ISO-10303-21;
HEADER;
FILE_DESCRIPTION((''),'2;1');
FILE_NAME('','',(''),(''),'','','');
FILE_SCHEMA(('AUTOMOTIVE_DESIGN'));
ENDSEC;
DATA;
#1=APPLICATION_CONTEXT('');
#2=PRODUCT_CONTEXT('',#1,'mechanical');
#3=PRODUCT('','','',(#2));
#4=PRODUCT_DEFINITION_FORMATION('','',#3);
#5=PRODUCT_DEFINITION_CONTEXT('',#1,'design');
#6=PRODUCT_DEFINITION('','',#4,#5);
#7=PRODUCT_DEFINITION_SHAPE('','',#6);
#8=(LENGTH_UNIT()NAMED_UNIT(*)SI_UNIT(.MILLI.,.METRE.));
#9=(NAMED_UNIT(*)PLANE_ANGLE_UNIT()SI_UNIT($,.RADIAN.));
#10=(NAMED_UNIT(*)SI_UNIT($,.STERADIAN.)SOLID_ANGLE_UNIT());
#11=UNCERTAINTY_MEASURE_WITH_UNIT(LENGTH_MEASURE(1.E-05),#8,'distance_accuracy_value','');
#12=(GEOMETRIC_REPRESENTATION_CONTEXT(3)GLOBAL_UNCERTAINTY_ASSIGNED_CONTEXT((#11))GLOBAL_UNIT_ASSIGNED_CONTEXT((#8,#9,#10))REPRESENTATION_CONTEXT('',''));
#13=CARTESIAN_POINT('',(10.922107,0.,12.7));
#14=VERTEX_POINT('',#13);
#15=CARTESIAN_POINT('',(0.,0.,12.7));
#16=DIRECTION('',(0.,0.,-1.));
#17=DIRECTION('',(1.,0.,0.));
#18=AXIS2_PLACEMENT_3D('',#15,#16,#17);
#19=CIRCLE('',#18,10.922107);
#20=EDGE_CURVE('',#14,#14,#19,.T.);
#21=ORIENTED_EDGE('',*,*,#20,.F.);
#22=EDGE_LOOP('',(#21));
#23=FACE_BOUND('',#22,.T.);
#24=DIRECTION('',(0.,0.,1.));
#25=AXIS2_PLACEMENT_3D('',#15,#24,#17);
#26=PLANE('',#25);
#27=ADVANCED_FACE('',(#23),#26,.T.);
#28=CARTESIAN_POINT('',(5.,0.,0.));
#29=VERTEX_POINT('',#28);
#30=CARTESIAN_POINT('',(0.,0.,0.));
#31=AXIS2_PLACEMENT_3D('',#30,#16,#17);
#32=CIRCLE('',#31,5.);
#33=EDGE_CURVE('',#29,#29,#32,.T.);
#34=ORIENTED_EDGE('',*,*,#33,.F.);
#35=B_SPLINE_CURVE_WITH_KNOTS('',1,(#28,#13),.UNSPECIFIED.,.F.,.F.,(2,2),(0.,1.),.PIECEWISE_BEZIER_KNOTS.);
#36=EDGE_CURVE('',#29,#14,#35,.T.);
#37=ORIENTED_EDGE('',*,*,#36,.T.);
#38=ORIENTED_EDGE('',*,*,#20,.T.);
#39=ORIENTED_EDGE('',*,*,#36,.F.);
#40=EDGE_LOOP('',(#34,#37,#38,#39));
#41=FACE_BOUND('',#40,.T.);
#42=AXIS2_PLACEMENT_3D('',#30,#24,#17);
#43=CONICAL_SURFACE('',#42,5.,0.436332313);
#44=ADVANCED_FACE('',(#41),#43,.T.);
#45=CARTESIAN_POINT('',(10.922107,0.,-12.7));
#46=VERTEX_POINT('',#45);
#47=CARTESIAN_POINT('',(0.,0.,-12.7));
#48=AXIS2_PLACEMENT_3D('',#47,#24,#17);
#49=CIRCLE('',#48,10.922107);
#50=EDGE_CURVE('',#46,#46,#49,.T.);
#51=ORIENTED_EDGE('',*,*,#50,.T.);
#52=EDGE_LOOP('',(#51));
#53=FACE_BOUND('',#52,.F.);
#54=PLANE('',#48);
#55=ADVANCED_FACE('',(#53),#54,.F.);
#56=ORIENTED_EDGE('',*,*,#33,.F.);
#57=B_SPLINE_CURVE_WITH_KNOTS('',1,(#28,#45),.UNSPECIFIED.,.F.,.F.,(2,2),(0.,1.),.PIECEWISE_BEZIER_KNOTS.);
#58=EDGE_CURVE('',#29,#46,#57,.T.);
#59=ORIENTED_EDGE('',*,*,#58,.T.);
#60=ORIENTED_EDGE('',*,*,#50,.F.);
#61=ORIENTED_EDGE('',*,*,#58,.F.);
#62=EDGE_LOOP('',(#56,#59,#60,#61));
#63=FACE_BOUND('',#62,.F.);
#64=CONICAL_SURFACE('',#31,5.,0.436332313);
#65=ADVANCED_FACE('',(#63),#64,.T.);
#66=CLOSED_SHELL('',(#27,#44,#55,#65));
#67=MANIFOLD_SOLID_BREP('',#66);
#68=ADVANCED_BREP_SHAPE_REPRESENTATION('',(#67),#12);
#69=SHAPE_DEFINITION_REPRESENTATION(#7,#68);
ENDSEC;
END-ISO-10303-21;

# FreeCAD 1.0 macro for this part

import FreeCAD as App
import Part
import Sketcher

V = App.Vector

doc = App.newDocument("Part")
body = doc.addObject("PartDesign::Body", "Body")

# Sketch on XY plane
sketch1 = body.newObject("Sketcher::SketchObject", "Sketch")
sketch1.AttachmentSupport = (doc.getObject("XY_Plane"), [""])
sketch1.MapMode = "FlatFace"
sketch1.addGeometry(Part.Circle(V(0, 0, 0), V(0, 0, 1), 5), False)
sketch1.addConstraint([
    Sketcher.Constraint("Coincident", 0, 3, -1, 1),
    Sketcher.Constraint("Diameter", 0, 10.0),
])
pad1 = body.newObject("PartDesign::Pad", "Pad")
pad1.Profile = sketch1
pad1.Length = 25.4
pad1.Midplane = True
pad1.TaperAngle = 25

doc.recompute()
